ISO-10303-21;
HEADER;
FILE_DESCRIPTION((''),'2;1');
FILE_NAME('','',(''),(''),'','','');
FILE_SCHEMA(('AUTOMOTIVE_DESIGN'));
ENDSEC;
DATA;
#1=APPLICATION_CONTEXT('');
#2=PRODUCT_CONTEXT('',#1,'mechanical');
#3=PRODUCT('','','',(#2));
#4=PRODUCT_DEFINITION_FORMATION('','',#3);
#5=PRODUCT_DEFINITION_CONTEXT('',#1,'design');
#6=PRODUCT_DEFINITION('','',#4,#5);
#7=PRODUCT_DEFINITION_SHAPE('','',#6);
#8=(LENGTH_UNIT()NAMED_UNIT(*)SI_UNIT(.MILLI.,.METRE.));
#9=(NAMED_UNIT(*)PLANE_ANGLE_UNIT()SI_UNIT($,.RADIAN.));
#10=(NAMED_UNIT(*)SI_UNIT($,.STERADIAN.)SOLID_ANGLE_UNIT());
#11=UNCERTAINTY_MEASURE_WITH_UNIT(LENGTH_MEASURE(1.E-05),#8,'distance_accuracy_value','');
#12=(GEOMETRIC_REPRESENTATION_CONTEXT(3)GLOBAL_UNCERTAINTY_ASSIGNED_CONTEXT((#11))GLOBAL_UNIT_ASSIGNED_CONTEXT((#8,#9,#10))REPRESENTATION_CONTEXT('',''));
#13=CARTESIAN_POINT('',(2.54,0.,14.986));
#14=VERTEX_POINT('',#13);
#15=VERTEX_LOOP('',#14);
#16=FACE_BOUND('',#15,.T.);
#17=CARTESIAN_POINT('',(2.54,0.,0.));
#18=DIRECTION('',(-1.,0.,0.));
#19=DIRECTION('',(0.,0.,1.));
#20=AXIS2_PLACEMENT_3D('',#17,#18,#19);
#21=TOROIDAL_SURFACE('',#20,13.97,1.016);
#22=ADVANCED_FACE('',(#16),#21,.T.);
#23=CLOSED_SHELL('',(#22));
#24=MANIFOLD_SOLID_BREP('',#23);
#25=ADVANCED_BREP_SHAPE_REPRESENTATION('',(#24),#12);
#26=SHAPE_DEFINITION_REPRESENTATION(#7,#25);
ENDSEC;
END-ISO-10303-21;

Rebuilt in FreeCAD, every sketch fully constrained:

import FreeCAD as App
import Part
import Sketcher
Q = App.Units.Quantity

doc = App.newDocument("Part")
body = doc.addObject("PartDesign::Body", "Body")

sketch1 = body.newObject("Sketcher::SketchObject", "Sketch")
sketch1.AttachmentSupport = (doc.getObject("XY_Plane"), [""])
sketch1.MapMode = "FlatFace"
sketch1.addGeometry(Part.Circle(App.Vector(2.5, -14, 0), App.Vector(0, 0, 1), 1), False)
sketch1.addConstraint([
    Sketcher.Constraint("Diameter", 0, Q("0.08 in")),
    Sketcher.Constraint("DistanceX", -1, 1, 0, 3, Q("0.1 in")),
    Sketcher.Constraint("DistanceY", 0, 3, -1, 1, Q("0.55 in")),
])
revolution = body.newObject("PartDesign::Revolution", "Revolution")
revolution.Profile = sketch1
revolution.ReferenceAxis = (sketch1, ["H_Axis"])
revolution.Angle = 360

doc.recompute()
